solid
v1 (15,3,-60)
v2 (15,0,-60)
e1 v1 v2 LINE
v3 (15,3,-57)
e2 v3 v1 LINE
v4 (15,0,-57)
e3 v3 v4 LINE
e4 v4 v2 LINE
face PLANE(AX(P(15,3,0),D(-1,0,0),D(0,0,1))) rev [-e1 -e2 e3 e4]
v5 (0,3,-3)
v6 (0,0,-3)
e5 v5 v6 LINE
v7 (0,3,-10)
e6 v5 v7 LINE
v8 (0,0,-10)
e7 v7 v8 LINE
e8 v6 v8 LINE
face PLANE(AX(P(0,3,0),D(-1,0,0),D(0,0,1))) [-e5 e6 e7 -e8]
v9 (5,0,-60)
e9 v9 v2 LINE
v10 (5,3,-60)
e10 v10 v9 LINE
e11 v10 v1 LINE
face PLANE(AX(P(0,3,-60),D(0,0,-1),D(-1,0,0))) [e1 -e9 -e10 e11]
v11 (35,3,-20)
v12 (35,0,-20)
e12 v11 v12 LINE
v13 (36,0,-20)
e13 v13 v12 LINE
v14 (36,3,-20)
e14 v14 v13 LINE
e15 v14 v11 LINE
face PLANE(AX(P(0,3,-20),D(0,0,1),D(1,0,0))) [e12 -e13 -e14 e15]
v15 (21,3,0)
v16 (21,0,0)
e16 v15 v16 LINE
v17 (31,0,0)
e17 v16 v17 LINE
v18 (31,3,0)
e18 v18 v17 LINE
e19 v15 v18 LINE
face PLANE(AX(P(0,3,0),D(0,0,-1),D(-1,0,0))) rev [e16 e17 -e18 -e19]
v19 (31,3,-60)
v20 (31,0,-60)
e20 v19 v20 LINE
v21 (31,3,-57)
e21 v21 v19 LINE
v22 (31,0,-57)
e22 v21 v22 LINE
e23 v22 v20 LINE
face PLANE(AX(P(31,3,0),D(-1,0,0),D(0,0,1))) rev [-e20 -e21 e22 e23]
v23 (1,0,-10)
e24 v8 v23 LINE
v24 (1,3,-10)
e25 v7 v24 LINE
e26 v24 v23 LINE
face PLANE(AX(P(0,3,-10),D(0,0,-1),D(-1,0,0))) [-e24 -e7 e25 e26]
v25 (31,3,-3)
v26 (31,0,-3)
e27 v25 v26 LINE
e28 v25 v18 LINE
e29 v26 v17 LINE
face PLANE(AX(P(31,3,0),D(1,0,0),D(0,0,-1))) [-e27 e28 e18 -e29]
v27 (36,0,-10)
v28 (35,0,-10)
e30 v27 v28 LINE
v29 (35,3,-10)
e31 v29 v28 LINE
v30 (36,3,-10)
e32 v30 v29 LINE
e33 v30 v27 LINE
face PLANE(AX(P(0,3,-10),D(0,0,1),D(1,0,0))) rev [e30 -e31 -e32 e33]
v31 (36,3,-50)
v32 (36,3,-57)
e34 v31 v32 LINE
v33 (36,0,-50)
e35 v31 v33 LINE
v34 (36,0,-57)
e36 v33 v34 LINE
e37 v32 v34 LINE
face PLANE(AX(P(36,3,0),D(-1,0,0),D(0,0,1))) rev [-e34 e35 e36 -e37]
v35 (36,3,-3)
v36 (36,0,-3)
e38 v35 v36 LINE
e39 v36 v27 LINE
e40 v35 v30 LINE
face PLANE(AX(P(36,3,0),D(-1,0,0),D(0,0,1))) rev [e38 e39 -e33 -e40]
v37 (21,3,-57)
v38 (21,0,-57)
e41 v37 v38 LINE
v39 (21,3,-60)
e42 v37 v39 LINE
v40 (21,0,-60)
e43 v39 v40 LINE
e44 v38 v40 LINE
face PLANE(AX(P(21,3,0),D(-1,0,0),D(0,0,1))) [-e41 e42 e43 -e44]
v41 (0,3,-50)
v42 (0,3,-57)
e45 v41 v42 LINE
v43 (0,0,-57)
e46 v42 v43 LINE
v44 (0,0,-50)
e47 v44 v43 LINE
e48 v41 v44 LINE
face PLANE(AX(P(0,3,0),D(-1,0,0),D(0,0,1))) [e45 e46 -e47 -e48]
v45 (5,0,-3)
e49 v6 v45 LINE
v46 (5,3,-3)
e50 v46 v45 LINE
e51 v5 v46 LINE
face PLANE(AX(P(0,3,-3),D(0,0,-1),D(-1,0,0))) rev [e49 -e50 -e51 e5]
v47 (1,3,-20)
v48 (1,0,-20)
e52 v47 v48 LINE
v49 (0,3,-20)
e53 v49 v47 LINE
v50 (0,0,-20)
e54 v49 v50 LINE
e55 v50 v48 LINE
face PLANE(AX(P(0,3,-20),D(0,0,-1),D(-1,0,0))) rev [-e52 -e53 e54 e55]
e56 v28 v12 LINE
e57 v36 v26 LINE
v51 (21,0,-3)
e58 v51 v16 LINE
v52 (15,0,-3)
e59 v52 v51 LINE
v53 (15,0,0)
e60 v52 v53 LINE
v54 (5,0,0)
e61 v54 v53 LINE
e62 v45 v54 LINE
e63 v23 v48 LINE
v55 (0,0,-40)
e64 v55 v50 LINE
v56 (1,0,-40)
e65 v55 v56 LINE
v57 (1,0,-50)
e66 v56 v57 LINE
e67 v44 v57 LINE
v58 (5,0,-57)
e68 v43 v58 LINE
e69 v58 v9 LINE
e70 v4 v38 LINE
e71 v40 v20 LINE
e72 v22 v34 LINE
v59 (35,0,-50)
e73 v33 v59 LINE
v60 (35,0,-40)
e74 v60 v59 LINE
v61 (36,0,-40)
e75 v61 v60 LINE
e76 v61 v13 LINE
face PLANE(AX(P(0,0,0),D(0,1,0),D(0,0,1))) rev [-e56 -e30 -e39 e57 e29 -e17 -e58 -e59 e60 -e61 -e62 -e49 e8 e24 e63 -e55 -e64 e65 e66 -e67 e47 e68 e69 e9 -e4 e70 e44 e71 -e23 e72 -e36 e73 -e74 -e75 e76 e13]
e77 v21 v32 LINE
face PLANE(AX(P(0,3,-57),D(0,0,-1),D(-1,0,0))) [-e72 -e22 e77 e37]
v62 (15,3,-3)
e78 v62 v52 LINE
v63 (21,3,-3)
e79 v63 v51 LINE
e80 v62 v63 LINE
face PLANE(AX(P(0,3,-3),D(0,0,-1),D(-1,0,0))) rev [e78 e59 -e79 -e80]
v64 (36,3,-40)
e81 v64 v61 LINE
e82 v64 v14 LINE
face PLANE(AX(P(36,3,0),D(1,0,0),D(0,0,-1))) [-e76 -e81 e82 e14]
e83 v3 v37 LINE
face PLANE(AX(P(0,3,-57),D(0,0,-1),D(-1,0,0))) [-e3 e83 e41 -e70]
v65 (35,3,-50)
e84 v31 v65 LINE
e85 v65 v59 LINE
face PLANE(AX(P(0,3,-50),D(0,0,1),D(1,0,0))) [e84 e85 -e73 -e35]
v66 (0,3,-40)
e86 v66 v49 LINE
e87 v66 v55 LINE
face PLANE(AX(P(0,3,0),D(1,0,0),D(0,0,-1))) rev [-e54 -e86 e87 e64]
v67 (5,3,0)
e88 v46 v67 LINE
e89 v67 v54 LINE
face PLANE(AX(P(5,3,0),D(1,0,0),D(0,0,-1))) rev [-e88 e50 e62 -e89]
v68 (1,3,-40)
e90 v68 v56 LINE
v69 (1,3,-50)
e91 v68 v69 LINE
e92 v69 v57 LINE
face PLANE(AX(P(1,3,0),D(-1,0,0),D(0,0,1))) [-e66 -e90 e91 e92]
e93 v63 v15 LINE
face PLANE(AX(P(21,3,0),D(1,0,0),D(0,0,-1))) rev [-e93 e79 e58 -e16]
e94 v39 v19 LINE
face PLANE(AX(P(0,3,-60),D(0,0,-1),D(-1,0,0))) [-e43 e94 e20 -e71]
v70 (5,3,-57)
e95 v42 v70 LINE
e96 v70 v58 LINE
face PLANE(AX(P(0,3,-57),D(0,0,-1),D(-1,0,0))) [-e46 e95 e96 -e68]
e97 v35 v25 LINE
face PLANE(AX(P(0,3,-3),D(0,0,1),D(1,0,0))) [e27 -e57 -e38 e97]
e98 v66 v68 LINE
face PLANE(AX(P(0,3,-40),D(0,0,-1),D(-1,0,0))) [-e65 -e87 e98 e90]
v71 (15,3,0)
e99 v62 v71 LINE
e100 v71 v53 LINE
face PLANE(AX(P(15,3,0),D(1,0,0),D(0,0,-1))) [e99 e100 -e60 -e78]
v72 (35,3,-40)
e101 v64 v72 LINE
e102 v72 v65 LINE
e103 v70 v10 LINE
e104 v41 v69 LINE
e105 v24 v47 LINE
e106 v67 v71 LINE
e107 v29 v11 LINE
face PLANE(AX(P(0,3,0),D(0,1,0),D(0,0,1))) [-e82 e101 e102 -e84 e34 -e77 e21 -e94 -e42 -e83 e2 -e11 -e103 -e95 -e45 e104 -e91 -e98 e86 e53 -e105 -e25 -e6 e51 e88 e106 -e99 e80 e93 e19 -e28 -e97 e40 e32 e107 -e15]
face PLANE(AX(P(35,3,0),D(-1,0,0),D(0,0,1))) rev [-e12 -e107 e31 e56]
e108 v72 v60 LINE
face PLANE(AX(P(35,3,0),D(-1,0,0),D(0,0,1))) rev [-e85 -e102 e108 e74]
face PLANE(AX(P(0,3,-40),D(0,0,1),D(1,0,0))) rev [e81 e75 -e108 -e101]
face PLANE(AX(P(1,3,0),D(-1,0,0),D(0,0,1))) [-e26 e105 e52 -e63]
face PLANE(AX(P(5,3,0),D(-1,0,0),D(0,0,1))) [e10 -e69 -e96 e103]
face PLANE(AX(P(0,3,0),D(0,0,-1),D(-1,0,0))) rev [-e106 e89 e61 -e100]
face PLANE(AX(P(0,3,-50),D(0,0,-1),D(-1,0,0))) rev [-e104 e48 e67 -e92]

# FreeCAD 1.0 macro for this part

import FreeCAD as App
import Part
import Sketcher
Q = App.Units.Quantity

doc = App.newDocument("Part")
body = doc.addObject("PartDesign::Body", "Body")

sketch1 = doc.addObject("Sketcher::SketchObject", "Sketch")
body.addObject(sketch1)
sketch1.AttachmentSupport = (doc.XZ_Plane, [""])
sketch1.MapMode = "FlatFace"
sketch1.addGeometry([
    Part.LineSegment(App.Vector(1, -20, 0), App.Vector(1, -10, 0)),
    Part.LineSegment(App.Vector(1, -10, 0), App.Vector(0, -10, 0)),
    Part.LineSegment(App.Vector(0, -10, 0), App.Vector(0, -3, 0)),
    Part.LineSegment(App.Vector(0, -3, 0), App.Vector(5, -3, 0)),
    Part.LineSegment(App.Vector(5, -3, 0), App.Vector(5, 0, 0)),
    Part.LineSegment(App.Vector(5, 0, 0), App.Vector(15, 0, 0)),
    Part.LineSegment(App.Vector(15, 0, 0), App.Vector(15, -3, 0)),
    Part.LineSegment(App.Vector(15, -3, 0), App.Vector(21, -3, 0)),
    Part.LineSegment(App.Vector(21, -3, 0), App.Vector(21, 0, 0)),
    Part.LineSegment(App.Vector(21, 0, 0), App.Vector(31, 0, 0)),
    Part.LineSegment(App.Vector(31, 0, 0), App.Vector(31, -3, 0)),
    Part.LineSegment(App.Vector(31, -3, 0), App.Vector(36, -3, 0)),
    Part.LineSegment(App.Vector(36, -3, 0), App.Vector(36, -10, 0)),
    Part.LineSegment(App.Vector(36, -10, 0), App.Vector(35, -10, 0)),
    Part.LineSegment(App.Vector(35, -10, 0), App.Vector(35, -20, 0)),
    Part.LineSegment(App.Vector(35, -20, 0), App.Vector(36, -20, 0)),
    Part.LineSegment(App.Vector(36, -20, 0), App.Vector(36, -40, 0)),
    Part.LineSegment(App.Vector(36, -40, 0), App.Vector(35, -40, 0)),
    Part.LineSegment(App.Vector(35, -40, 0), App.Vector(35, -50, 0)),
    Part.LineSegment(App.Vector(35, -50, 0), App.Vector(36, -50, 0)),
    Part.LineSegment(App.Vector(36, -50, 0), App.Vector(36, -57, 0)),
    Part.LineSegment(App.Vector(36, -57, 0), App.Vector(31, -57, 0)),
    Part.LineSegment(App.Vector(31, -57, 0), App.Vector(31, -60, 0)),
    Part.LineSegment(App.Vector(31, -60, 0), App.Vector(21, -60, 0)),
    Part.LineSegment(App.Vector(21, -60, 0), App.Vector(21, -57, 0)),
    Part.LineSegment(App.Vector(21, -57, 0), App.Vector(15, -57, 0)),
    Part.LineSegment(App.Vector(15, -57, 0), App.Vector(15, -60, 0)),
    Part.LineSegment(App.Vector(15, -60, 0), App.Vector(5, -60, 0)),
    Part.LineSegment(App.Vector(5, -60, 0), App.Vector(5, -57, 0)),
    Part.LineSegment(App.Vector(5, -57, 0), App.Vector(0, -57, 0)),
    Part.LineSegment(App.Vector(0, -57, 0), App.Vector(0, -50, 0)),
    Part.LineSegment(App.Vector(0, -50, 0), App.Vector(1, -50, 0)),
    Part.LineSegment(App.Vector(1, -50, 0), App.Vector(1, -40, 0)),
    Part.LineSegment(App.Vector(1, -40, 0), App.Vector(0, -40, 0)),
    Part.LineSegment(App.Vector(0, -40, 0), App.Vector(0, -20, 0)),
    Part.LineSegment(App.Vector(0, -20, 0), App.Vector(1, -20, 0)),
], False)
sketch1.addConstraint([
    Sketcher.Constraint("Coincident", 0, 2, 1, 1),
    Sketcher.Constraint("Coincident", 1, 2, 2, 1),
    Sketcher.Constraint("Coincident", 2, 2, 3, 1),
    Sketcher.Constraint("Coincident", 3, 2, 4, 1),
    Sketcher.Constraint("Coincident", 4, 2, 5, 1),
    Sketcher.Constraint("Coincident", 5, 2, 6, 1),
    Sketcher.Constraint("Coincident", 6, 2, 7, 1),
    Sketcher.Constraint("Coincident", 7, 2, 8, 1),
    Sketcher.Constraint("Coincident", 8, 2, 9, 1),
    Sketcher.Constraint("Coincident", 9, 2, 10, 1),
    Sketcher.Constraint("Coincident", 10, 2, 11, 1),
    Sketcher.Constraint("Coincident", 11, 2, 12, 1),
    Sketcher.Constraint("Coincident", 12, 2, 13, 1),
    Sketcher.Constraint("Coincident", 13, 2, 14, 1),
    Sketcher.Constraint("Coincident", 14, 2, 15, 1),
    Sketcher.Constraint("Coincident", 15, 2, 16, 1),
    Sketcher.Constraint("Coincident", 16, 2, 17, 1),
    Sketcher.Constraint("Coincident", 17, 2, 18, 1),
    Sketcher.Constraint("Coincident", 18, 2, 19, 1),
    Sketcher.Constraint("Coincident", 19, 2, 20, 1),
    Sketcher.Constraint("Coincident", 20, 2, 21, 1),
    Sketcher.Constraint("Coincident", 21, 2, 22, 1),
    Sketcher.Constraint("Coincident", 22, 2, 23, 1),
    Sketcher.Constraint("Coincident", 23, 2, 24, 1),
    Sketcher.Constraint("Coincident", 24, 2, 25, 1),
    Sketcher.Constraint("Coincident", 25, 2, 26, 1),
    Sketcher.Constraint("Coincident", 26, 2, 27, 1),
    Sketcher.Constraint("Coincident", 27, 2, 28, 1),
    Sketcher.Constraint("Coincident", 28, 2, 29, 1),
    Sketcher.Constraint("Coincident", 29, 2, 30, 1),
    Sketcher.Constraint("Coincident", 30, 2, 31, 1),
    Sketcher.Constraint("Coincident", 31, 2, 32, 1),
    Sketcher.Constraint("Coincident", 32, 2, 33, 1),
    Sketcher.Constraint("Coincident", 33, 2, 34, 1),
    Sketcher.Constraint("Coincident", 34, 2, 35, 1),
    Sketcher.Constraint("Coincident", 35, 2, 0, 1),
    Sketcher.Constraint("Vertical", 0),
    Sketcher.Constraint("Horizontal", 1),
    Sketcher.Constraint("Vertical", 2),
    Sketcher.Constraint("Horizontal", 3),
    Sketcher.Constraint("Vertical", 4),
    Sketcher.Constraint("Horizontal", 5),
    Sketcher.Constraint("Vertical", 6),
    Sketcher.Constraint("Horizontal", 7),
    Sketcher.Constraint("Vertical", 8),
    Sketcher.Constraint("Horizontal", 9),
    Sketcher.Constraint("Vertical", 10),
    Sketcher.Constraint("Horizontal", 11),
    Sketcher.Constraint("Vertical", 12),
    Sketcher.Constraint("Horizontal", 13),
    Sketcher.Constraint("Vertical", 14),
    Sketcher.Constraint("Horizontal", 15),
    Sketcher.Constraint("Vertical", 16),
    Sketcher.Constraint("Horizontal", 17),
    Sketcher.Constraint("Vertical", 18),
    Sketcher.Constraint("Horizontal", 19),
    Sketcher.Constraint("Vertical", 20),
    Sketcher.Constraint("Horizontal", 21),
    Sketcher.Constraint("Vertical", 22),
    Sketcher.Constraint("Horizontal", 23),
    Sketcher.Constraint("Vertical", 24),
    Sketcher.Constraint("Horizontal", 25),
    Sketcher.Constraint("Vertical", 26),
    Sketcher.Constraint("Horizontal", 27),
    Sketcher.Constraint("Vertical", 28),
    Sketcher.Constraint("Horizontal", 29),
    Sketcher.Constraint("Vertical", 30),
    Sketcher.Constraint("Horizontal", 31),
    Sketcher.Constraint("Vertical", 32),
    Sketcher.Constraint("Horizontal", 33),
    Sketcher.Constraint("Vertical", 34),
    Sketcher.Constraint("Horizontal", 35),
    Sketcher.Constraint("PointOnObject", 1, 2, -2),
    Sketcher.Constraint("PointOnObject", 4, 2, -1),
    Sketcher.Constraint("PointOnObject", 8, 2, -1),
    Sketcher.Constraint("PointOnObject", 29, 2, -2),
    Sketcher.Constraint("PointOnObject", 33, 2, -2),
    Sketcher.Constraint("Horizontal", 3, 2, 6, 2),
    Sketcher.Constraint("Horizontal", 7, 2, 10, 2),
    Sketcher.Constraint("Horizontal", 1, 2, 12, 2),
    Sketcher.Constraint("Horizontal", 21, 2, 24, 2),
    Sketcher.Constraint("Horizontal", 23, 2, 26, 2),
    Sketcher.Constraint("Horizontal", 25, 2, 28, 2),
    Sketcher.Constraint("Horizontal", 19, 2, 30, 2),
    Sketcher.Constraint("Horizontal", 17, 2, 32, 2),
    Sketcher.Constraint("Horizontal", 15, 2, 34, 2),
    Sketcher.Constraint("Vertical", 12, 2, 15, 2),
    Sketcher.Constraint("Vertical", 14, 2, 17, 2),
    Sketcher.Constraint("Vertical", 16, 2, 19, 2),
    Sketcher.Constraint("Vertical", 10, 2, 21, 2),
    Sketcher.Constraint("Vertical", 8, 2, 23, 2),
    Sketcher.Constraint("Vertical", 6, 2, 25, 2),
    Sketcher.Constraint("Vertical", 4, 2, 27, 2),
    Sketcher.Constraint("Vertical", 0, 2, 31, 2),
    Sketcher.Constraint("Equal", 5, 9),
    Sketcher.Constraint("Equal", 3, 11),
    Sketcher.Constraint("Equal", 1, 13),
    Sketcher.Constraint("Equal", 27, 0),
    Sketcher.Constraint("Equal", 14, 18),
    Sketcher.Constraint("Equal", 12, 20),
    Sketcher.Constraint("Equal", 10, 22),
    Sketcher.Constraint("DistanceX", 1, 2, 1, 1, Q("1 mm")),
    Sketcher.Constraint("DistanceX", 3, 1, 3, 2, Q("5 mm")),
    Sketcher.Constraint("DistanceX", 5, 1, 5, 2, Q("10 mm")),
    Sketcher.Constraint("DistanceX", 7, 1, 7, 2, Q("6 mm")),
    Sketcher.Constraint("DistanceY", 2, 1, 2, 2, Q("7 mm")),
    Sketcher.Constraint("DistanceY", 4, 1, 4, 2, Q("3 mm")),
    Sketcher.Constraint("DistanceY", 16, 2, 16, 1, Q("20 mm")),
])
pad1 = doc.addObject("PartDesign::Pad", "Pad")
body.addObject(pad1)
pad1.Profile = sketch1
pad1.Length = 3
pad1.Reversed = True

doc.recompute()
